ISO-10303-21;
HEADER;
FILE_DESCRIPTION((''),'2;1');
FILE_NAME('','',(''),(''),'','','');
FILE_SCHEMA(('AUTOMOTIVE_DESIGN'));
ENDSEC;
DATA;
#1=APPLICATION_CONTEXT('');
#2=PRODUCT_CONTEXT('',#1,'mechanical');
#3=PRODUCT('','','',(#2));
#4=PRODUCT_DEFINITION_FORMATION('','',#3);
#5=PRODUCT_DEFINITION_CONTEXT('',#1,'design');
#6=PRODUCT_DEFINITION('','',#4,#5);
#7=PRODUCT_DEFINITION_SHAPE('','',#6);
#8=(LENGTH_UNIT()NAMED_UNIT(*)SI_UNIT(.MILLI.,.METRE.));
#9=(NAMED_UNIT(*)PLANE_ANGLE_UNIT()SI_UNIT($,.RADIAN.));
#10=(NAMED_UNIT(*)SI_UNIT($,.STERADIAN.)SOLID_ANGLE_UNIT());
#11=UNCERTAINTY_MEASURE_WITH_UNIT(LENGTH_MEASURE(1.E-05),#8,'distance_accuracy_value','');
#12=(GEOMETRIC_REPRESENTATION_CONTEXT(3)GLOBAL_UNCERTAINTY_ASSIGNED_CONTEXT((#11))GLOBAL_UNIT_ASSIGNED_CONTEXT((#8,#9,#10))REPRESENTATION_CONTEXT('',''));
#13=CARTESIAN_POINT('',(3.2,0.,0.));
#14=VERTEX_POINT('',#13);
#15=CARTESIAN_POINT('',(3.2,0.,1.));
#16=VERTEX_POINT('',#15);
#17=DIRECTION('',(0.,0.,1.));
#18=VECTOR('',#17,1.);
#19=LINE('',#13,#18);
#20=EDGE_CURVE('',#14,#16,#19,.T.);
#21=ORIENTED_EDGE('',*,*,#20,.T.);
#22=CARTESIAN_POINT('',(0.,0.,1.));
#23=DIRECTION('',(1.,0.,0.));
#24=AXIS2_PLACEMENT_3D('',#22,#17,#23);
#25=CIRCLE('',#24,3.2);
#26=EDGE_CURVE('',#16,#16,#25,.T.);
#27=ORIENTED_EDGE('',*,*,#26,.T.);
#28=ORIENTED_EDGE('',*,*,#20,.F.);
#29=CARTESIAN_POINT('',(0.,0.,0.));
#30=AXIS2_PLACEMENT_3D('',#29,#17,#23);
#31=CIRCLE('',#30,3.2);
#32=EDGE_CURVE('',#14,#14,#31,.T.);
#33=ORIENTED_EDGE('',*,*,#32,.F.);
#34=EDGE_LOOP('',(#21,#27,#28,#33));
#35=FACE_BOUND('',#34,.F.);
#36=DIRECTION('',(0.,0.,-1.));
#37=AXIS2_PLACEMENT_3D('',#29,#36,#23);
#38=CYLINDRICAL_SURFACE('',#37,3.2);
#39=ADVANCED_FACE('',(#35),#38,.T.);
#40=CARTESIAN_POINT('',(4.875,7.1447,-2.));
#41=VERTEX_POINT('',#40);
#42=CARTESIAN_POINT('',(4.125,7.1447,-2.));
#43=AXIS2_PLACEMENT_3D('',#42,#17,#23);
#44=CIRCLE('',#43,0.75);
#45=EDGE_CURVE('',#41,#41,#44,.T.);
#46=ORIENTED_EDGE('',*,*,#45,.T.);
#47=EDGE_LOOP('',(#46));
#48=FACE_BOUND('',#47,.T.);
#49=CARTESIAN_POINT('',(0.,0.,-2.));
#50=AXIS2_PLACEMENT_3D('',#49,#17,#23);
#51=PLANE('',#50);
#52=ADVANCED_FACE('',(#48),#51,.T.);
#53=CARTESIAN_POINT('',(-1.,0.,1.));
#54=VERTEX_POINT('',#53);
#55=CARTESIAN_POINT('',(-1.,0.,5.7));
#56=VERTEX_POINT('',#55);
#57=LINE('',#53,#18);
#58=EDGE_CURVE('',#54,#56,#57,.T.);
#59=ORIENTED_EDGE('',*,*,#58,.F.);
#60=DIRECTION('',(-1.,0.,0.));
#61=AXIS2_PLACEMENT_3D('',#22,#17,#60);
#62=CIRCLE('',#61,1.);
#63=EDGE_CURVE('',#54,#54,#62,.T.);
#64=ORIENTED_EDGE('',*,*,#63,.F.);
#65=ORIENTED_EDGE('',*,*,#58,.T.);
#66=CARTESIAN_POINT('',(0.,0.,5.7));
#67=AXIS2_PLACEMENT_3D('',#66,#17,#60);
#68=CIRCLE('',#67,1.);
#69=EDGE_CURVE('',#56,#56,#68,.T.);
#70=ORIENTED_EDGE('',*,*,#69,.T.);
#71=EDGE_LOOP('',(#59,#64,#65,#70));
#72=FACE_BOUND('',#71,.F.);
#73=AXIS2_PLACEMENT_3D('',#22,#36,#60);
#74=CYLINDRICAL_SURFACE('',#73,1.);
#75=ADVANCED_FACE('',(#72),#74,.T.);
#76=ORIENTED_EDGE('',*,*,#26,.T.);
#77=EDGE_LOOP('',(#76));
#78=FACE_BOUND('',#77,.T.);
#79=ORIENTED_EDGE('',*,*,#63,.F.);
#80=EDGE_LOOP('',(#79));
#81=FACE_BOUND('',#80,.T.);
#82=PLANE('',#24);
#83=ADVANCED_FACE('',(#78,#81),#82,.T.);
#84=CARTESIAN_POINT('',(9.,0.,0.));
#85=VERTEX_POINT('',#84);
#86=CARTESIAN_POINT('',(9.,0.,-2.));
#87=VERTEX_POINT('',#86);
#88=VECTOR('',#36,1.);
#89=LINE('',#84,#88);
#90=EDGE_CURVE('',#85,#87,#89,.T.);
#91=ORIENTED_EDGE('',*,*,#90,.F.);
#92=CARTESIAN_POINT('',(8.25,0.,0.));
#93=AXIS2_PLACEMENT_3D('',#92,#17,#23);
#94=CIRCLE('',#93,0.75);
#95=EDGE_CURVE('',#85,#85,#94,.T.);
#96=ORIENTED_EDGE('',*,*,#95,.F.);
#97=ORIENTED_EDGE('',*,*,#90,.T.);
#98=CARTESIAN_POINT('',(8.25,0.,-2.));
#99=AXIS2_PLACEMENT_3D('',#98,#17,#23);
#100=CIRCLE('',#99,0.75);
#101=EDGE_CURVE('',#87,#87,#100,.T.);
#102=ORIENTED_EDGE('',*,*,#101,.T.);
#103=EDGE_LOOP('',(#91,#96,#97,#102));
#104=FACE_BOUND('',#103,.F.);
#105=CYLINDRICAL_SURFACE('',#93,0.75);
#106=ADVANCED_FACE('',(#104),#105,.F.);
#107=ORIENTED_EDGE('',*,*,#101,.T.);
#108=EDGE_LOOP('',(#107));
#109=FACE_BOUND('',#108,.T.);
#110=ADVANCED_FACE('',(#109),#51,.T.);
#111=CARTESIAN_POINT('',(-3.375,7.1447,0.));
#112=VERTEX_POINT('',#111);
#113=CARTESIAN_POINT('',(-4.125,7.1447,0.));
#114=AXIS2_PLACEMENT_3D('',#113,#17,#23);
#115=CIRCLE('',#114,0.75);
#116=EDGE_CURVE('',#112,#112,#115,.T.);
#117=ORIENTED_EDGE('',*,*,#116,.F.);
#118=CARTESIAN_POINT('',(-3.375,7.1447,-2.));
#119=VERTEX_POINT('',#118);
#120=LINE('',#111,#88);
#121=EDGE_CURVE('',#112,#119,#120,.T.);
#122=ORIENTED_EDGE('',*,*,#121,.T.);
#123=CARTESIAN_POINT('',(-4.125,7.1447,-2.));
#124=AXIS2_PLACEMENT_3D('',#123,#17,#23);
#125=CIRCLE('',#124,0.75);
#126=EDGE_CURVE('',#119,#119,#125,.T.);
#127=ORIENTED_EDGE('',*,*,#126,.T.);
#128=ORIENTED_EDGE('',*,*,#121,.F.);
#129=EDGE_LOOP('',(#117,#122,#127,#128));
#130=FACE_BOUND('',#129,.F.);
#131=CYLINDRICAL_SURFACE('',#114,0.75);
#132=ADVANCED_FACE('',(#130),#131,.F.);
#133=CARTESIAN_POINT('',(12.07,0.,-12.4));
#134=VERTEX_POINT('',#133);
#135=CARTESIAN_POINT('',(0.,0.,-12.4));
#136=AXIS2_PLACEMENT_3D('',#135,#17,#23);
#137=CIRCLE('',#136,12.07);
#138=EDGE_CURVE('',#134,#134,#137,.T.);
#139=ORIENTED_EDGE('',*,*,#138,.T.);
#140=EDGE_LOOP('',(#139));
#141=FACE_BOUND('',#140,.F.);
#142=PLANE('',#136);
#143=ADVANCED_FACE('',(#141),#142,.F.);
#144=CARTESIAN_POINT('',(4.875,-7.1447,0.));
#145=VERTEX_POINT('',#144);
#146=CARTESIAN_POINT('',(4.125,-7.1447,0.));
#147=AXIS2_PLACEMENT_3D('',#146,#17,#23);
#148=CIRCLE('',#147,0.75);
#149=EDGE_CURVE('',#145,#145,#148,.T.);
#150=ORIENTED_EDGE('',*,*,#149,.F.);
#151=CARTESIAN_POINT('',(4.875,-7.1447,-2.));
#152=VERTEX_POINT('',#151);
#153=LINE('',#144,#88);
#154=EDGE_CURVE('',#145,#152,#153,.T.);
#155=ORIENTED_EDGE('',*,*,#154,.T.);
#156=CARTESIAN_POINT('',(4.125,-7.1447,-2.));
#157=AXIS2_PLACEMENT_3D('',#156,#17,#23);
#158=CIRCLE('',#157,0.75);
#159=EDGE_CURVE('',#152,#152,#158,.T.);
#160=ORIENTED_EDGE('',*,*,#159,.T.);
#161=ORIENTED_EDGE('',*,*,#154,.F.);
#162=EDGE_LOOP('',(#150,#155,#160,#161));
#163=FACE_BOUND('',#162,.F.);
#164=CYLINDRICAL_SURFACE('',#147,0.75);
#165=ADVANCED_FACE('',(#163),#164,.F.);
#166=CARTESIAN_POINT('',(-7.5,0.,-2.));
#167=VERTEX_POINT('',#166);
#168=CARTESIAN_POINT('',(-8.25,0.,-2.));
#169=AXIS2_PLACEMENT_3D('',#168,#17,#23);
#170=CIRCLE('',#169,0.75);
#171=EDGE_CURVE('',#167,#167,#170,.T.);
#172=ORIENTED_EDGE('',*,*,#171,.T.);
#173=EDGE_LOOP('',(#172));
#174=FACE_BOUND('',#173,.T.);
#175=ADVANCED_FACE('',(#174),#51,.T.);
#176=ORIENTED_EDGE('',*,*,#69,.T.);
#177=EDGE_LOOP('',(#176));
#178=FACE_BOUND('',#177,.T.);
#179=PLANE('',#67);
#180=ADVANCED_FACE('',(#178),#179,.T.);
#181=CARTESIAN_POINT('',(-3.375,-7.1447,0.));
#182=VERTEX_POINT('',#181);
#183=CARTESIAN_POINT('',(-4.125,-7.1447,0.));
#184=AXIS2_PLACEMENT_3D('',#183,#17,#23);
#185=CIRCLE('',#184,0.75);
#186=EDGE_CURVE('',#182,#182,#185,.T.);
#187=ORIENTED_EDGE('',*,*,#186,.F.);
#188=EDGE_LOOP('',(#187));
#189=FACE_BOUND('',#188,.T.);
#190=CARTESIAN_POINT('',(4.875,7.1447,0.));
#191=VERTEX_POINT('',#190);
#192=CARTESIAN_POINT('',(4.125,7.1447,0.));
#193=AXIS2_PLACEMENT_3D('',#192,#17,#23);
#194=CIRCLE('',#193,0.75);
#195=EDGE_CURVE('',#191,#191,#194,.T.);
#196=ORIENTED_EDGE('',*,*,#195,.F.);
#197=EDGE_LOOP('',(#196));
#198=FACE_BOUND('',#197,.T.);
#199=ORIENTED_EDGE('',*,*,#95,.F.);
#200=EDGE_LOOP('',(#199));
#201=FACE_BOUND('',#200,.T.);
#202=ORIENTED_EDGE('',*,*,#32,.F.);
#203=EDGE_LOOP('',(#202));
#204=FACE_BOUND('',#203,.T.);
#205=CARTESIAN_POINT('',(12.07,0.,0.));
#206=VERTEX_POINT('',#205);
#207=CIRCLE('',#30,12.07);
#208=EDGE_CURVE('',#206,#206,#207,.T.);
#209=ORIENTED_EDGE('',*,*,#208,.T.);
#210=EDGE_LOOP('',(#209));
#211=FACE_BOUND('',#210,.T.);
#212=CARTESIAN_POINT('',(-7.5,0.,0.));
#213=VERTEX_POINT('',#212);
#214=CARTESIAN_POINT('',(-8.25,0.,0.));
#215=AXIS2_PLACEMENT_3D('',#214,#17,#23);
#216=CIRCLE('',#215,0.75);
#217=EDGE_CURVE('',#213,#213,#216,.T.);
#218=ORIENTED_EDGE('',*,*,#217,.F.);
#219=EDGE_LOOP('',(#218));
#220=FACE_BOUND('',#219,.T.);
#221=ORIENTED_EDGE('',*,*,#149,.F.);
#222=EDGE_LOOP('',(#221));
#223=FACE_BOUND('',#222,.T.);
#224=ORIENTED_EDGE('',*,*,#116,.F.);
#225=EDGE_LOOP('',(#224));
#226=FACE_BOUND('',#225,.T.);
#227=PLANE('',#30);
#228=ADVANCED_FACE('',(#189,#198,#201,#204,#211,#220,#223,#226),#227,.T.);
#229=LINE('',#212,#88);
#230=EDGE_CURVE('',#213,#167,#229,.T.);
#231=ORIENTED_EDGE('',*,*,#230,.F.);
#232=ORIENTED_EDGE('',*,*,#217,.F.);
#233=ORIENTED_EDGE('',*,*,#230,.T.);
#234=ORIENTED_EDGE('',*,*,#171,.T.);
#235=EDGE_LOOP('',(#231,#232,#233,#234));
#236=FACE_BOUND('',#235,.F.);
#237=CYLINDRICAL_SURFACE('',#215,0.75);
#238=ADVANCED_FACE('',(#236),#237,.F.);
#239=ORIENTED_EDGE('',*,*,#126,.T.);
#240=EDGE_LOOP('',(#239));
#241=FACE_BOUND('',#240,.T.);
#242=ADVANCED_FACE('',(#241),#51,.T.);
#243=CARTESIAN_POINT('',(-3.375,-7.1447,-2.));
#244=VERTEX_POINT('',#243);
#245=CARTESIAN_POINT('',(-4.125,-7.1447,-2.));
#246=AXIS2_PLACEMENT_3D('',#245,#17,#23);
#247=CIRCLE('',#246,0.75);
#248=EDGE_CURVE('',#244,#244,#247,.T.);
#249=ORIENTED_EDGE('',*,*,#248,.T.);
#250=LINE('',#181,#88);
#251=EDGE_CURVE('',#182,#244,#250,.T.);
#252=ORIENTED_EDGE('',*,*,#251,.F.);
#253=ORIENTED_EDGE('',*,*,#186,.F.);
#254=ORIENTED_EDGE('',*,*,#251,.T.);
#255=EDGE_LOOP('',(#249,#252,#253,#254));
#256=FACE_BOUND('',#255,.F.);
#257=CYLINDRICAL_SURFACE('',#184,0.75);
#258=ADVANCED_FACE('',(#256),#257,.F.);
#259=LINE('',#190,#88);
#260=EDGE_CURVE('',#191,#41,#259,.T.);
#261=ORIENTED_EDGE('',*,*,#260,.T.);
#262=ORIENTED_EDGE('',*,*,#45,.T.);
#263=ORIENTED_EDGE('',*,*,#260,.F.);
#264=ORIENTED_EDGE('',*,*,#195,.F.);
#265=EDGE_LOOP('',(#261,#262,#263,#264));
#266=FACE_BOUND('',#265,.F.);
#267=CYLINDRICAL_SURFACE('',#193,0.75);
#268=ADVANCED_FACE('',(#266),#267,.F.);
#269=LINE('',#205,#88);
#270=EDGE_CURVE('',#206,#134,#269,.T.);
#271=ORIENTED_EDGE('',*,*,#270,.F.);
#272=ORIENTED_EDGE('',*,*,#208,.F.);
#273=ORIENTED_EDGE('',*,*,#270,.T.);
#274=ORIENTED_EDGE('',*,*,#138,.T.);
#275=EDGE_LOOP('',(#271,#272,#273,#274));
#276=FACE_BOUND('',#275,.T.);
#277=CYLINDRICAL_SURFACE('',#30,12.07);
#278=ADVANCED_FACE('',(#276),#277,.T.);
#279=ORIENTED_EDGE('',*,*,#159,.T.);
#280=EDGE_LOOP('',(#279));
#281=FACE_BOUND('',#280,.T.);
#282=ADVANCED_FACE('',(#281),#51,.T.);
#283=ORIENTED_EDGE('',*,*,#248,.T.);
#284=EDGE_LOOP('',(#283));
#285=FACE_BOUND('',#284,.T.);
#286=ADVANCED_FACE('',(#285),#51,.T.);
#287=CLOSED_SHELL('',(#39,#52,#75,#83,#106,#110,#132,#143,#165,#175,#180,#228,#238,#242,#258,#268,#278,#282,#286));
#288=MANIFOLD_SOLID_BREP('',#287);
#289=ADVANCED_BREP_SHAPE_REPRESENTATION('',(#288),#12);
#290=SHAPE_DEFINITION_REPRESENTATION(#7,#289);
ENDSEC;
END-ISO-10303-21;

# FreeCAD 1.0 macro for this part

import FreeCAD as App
import Part
import Sketcher

V = App.Vector

doc = App.newDocument("Part")
body = doc.addObject("PartDesign::Body", "Body")

sketch1 = body.newObject("Sketcher::SketchObject", "Sketch")
sketch1.AttachmentSupport = (doc.getObject("XY_Plane"), [""])
sketch1.MapMode = "FlatFace"
sketch1.addGeometry(Part.Circle(V(0, 0, 0), V(0, 0, 1), 12), False)
sketch1.addConstraint([
    Sketcher.Constraint("Coincident", 0, 3, -1, 1),
    Sketcher.Constraint("Diameter", 0, 24.14),
])
pad1 = body.newObject("PartDesign::Pad", "Pad")
pad1.Profile = sketch1
pad1.Length = 12.4
pad1.Reversed = True

sketch2 = body.newObject("Sketcher::SketchObject", "Sketch001")
sketch2.AttachmentSupport = (doc.getObject("XY_Plane"), [""])
sketch2.MapMode = "FlatFace"
sketch2.addGeometry(Part.Circle(V(0, 0, 0), V(0, 0, 1), 3.2), False)
sketch2.addConstraint([
    Sketcher.Constraint("Coincident", 0, 3, -1, 1),
    Sketcher.Constraint("Diameter", 0, 6.4),
])
pad2 = body.newObject("PartDesign::Pad", "Pad001")
pad2.Profile = sketch2
pad2.Length = 1

sketch3 = body.newObject("Sketcher::SketchObject", "Sketch002")
sketch3.AttachmentSupport = (doc.getObject("XY_Plane"), [""])
sketch3.MapMode = "FlatFace"
sketch3.AttachmentOffset = App.Placement(V(0, 0, 1), App.Rotation())
sketch3.addGeometry(Part.Circle(V(0, 0, 0), V(0, 0, 1), 1), False)
sketch3.addConstraint([
    Sketcher.Constraint("Coincident", 0, 3, -1, 1),
    Sketcher.Constraint("Diameter", 0, 2.0),
])
pad3 = body.newObject("PartDesign::Pad", "Pad002")
pad3.Profile = sketch3
pad3.Length = 4.7

sketch4 = body.newObject("Sketcher::SketchObject", "Sketch003")
sketch4.AttachmentSupport = (doc.getObject("XY_Plane"), [""])
sketch4.MapMode = "FlatFace"
sketch4.addGeometry([
    Part.Circle(V(-8.2, 0, 0), V(0, 0, 1), 0.8),
    Part.Circle(V(-4.1, -7.1, 0), V(0, 0, 1), 0.8),
    Part.Circle(V(4.1, -7.1, 0), V(0, 0, 1), 0.8),
    Part.Circle(V(8.2, 0, 0), V(0, 0, 1), 0.8),
    Part.Circle(V(4.1, 7.1, 0), V(0, 0, 1), 0.8),
    Part.Circle(V(-4.1, 7.1, 0), V(0, 0, 1), 0.8),
], False)
sketch4.addConstraint([
    Sketcher.Constraint("Equal", 0, 1),
    Sketcher.Constraint("Equal", 1, 2),
    Sketcher.Constraint("Equal", 2, 3),
    Sketcher.Constraint("Equal", 3, 4),
    Sketcher.Constraint("Equal", 4, 5),
    Sketcher.Constraint("Symmetric", 0, 3, 3, 3, -1, 1),
    Sketcher.Constraint("Symmetric", 1, 3, 4, 3, -1, 1),
    Sketcher.Constraint("Symmetric", 2, 3, 5, 3, -1, 1),
    Sketcher.Constraint("Symmetric", 1, 3, 2, 3, -2),
    Sketcher.Constraint("PointOnObject", 0, 3, -1),
    Sketcher.Constraint("Diameter", 0, 1.5),
    Sketcher.Constraint("DistanceX", 0, 3, -1, 1, 8.25),
    Sketcher.Constraint("DistanceX", 1, 3, 2, 3, 8.25),
    Sketcher.Constraint("DistanceY", 1, 3, -1, 1, 7.1447),
])
pocket1 = body.newObject("PartDesign::Pocket", "Pocket")
pocket1.Profile = sketch4
pocket1.Length = 2

doc.recompute()
